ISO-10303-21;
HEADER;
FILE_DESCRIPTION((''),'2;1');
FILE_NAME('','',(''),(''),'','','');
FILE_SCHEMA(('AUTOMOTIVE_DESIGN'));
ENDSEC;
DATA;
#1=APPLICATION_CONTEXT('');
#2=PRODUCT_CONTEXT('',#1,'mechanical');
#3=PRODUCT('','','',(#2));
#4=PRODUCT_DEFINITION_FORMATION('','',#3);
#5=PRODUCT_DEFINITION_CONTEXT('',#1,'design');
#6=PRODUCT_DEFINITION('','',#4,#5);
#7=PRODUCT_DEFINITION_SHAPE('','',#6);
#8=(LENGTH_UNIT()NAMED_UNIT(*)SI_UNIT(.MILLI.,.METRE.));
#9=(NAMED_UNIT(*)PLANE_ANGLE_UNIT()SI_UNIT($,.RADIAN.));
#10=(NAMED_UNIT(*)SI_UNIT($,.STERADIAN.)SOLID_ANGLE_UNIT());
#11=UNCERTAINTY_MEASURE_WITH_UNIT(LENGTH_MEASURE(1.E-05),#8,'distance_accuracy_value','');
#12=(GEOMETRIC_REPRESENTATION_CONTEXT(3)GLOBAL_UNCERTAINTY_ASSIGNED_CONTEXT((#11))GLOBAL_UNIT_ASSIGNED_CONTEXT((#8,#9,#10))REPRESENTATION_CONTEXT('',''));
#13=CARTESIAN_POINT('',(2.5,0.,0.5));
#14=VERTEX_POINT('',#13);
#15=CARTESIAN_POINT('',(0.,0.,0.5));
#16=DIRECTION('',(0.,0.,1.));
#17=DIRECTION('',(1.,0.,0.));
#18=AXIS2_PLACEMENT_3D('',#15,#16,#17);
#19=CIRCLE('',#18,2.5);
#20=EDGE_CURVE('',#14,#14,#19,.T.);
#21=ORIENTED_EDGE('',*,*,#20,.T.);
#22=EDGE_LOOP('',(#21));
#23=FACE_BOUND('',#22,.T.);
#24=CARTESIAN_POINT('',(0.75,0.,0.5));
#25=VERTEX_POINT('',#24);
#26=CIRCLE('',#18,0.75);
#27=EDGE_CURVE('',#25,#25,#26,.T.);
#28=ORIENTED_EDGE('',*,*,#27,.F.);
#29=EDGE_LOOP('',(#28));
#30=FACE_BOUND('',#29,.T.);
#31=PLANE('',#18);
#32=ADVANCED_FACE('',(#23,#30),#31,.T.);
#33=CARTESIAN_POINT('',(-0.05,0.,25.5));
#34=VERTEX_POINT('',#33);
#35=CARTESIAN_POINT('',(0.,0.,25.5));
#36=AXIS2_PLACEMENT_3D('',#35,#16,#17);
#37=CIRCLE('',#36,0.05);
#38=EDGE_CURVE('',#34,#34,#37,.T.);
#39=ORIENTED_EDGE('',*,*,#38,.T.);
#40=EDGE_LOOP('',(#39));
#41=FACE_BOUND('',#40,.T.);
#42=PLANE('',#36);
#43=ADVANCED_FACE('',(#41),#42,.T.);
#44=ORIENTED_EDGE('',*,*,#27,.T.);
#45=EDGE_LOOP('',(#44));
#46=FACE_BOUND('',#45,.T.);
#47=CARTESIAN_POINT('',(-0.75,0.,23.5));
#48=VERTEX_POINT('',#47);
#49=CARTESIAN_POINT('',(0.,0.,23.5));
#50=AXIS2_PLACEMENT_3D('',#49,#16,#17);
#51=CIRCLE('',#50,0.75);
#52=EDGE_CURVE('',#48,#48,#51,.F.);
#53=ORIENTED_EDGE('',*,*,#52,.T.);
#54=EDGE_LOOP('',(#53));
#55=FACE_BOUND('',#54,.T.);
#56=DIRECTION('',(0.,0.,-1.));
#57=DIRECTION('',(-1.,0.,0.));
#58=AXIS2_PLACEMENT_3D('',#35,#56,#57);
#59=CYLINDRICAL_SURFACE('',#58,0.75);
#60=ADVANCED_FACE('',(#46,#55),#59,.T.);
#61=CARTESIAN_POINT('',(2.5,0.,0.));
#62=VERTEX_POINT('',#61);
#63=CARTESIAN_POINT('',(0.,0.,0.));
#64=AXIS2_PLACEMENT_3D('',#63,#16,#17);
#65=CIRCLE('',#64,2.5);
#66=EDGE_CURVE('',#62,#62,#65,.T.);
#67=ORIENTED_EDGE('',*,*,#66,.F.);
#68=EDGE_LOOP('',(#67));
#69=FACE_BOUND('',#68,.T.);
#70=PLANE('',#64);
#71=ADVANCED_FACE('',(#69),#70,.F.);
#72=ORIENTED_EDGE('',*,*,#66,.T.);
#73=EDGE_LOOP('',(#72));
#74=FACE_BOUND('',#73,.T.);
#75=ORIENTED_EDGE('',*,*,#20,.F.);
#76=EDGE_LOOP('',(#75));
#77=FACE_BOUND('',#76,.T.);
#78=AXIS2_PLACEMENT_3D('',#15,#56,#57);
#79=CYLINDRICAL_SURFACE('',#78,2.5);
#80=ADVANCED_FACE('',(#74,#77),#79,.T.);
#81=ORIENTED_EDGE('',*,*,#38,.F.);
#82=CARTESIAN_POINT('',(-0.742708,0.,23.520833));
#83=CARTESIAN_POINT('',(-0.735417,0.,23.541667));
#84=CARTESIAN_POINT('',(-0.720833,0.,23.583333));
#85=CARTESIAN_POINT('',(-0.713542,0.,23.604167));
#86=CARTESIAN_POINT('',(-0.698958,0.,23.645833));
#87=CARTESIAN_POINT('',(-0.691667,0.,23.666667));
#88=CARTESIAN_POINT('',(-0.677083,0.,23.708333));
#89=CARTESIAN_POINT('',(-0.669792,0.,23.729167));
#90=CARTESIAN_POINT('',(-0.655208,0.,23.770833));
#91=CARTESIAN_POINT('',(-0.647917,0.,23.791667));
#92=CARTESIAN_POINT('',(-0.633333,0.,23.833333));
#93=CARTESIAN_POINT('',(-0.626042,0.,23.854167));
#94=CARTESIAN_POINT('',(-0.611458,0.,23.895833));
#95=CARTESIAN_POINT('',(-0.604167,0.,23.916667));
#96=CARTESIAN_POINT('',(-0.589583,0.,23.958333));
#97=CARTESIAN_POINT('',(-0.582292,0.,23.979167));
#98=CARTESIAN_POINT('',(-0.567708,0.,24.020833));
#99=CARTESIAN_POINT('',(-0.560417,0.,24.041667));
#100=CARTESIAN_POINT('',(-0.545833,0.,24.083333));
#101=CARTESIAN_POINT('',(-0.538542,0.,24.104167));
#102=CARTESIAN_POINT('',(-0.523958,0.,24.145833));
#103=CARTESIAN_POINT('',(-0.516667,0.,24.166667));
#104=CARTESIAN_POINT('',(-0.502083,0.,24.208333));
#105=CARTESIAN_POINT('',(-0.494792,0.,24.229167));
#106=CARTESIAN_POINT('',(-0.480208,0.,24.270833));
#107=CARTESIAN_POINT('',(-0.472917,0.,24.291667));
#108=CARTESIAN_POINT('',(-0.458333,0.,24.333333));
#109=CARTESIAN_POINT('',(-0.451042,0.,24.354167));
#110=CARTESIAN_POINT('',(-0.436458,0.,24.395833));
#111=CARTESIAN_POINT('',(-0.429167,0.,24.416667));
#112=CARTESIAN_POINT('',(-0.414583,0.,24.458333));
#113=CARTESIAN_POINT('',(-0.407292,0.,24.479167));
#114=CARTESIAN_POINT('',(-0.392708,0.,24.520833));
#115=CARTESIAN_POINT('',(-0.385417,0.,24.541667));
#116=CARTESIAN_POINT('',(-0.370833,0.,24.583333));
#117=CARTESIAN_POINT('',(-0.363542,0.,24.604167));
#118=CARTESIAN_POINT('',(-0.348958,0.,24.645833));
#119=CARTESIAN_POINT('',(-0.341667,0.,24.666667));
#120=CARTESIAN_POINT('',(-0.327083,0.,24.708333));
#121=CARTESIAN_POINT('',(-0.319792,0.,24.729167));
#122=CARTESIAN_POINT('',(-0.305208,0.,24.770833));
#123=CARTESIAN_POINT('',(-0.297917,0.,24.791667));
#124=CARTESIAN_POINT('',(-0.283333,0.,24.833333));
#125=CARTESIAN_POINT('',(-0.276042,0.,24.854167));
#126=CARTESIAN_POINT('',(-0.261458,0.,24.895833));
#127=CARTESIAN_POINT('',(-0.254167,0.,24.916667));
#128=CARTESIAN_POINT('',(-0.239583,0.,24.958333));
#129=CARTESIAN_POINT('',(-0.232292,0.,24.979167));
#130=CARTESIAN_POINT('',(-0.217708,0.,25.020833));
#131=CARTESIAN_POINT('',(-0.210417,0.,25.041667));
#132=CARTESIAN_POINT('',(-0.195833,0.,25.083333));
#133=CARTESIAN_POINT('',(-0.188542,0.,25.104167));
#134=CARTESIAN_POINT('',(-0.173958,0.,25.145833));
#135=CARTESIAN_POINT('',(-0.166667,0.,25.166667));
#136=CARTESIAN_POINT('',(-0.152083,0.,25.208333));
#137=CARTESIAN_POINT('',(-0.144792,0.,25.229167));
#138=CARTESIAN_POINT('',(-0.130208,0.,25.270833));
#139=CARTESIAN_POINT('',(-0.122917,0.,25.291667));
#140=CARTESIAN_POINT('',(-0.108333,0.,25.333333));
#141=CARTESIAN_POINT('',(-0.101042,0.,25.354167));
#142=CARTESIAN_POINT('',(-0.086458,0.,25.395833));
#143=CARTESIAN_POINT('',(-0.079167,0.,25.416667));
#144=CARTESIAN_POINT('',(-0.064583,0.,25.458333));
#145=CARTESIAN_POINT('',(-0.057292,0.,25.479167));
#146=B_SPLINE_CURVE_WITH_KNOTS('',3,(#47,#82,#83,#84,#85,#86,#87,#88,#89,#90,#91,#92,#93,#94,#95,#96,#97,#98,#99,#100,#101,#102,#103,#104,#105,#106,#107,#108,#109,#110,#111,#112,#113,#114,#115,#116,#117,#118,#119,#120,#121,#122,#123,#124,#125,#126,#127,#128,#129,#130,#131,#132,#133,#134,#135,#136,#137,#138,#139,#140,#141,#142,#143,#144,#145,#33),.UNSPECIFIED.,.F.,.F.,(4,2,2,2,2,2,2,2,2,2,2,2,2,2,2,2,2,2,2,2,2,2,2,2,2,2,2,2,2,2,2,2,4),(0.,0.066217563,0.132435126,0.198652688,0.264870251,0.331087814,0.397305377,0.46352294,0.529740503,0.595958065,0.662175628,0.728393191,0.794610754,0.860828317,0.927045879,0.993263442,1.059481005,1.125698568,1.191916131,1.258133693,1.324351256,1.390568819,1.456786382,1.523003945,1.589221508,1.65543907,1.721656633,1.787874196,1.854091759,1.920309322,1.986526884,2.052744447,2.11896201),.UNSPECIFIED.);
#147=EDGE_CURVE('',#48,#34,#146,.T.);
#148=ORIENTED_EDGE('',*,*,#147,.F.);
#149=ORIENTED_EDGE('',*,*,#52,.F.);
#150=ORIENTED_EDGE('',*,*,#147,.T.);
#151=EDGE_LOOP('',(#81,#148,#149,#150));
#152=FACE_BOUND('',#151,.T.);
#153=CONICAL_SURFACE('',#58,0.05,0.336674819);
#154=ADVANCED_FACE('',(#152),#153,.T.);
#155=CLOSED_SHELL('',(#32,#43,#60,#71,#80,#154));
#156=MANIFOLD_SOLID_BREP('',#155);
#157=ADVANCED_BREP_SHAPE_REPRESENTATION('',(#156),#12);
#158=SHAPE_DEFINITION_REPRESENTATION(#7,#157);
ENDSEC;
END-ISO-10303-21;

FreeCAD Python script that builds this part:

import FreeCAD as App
import Part
import Sketcher

V = App.Vector
Q = App.Units.Quantity


def edges_at(feature, points):
    """Names of the edges that pass closest to the given points."""
    edges = feature.Shape.Edges
    near = lambda p: min(range(len(edges)), key=lambda i: edges[i].distToShape(Part.Vertex(*p))[0])
    return sorted({f"Edge{near(p) + 1}" for p in points})

doc = App.newDocument("Part")
body = doc.addObject("PartDesign::Body", "Body")

sketch1 = body.newObject("Sketcher::SketchObject", "Sketch")
sketch1.AttachmentSupport = (doc.getObject("XY_Plane"), [""])
sketch1.MapMode = "FlatFace"
sketch1.addGeometry(Part.Circle(V(0, 0, 0), V(0, 0, 1), 2.5), False)
sketch1.addConstraint(Sketcher.Constraint("Coincident", 0, 3, -1, 1))
sketch1.addConstraint(Sketcher.Constraint("Diameter", 0, Q("5 mm")))
pad1 = body.newObject("PartDesign::Pad", "Pad")
pad1.Profile = sketch1
pad1.Length = 0.5

sketch2 = body.newObject("Sketcher::SketchObject", "Sketch001")
sketch2.AttachmentSupport = (doc.getObject("XY_Plane"), [""])
sketch2.MapMode = "FlatFace"
sketch2.AttachmentOffset = App.Placement(V(0, 0, 0.5), App.Rotation())
sketch2.addGeometry(Part.Circle(V(0, 0, 0), V(0, 0, 1), 0.75), False)
sketch2.addConstraint(Sketcher.Constraint("Coincident", 0, 3, -1, 1))
sketch2.addConstraint(Sketcher.Constraint("Diameter", 0, Q("1.5 mm")))
pad2 = body.newObject("PartDesign::Pad", "Pad001")
pad2.Profile = sketch2
pad2.Length = 25
doc.recompute()

chamfer = body.newObject("PartDesign::Chamfer", "Chamfer")
chamfer.Base = (pad2, edges_at(pad2, [(-0.75, 0, 25.5)]))
chamfer.ChamferType = "Two distances"
chamfer.Size = 2
chamfer.Size2 = 0.7

doc.recompute()
